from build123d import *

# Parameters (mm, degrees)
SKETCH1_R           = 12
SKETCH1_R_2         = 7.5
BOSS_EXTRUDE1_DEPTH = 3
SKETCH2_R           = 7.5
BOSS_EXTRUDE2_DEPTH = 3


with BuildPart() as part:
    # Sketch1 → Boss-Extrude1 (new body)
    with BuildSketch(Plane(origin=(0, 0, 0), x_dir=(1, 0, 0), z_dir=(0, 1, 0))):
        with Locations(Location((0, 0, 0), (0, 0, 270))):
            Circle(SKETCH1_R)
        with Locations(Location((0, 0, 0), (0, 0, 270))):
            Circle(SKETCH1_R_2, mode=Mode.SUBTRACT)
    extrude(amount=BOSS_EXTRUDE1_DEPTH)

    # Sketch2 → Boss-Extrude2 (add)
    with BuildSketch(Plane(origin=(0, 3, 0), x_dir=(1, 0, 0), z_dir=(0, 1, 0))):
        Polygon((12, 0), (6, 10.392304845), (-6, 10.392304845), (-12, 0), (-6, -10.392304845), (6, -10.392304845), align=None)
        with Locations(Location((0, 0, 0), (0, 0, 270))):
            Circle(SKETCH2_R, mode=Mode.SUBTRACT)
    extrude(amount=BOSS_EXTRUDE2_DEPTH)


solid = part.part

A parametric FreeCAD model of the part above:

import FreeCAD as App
import Part
import Sketcher
Q = App.Units.Quantity

doc = App.newDocument("Part")
body = doc.addObject("PartDesign::Body", "Body")

# Sketch on XZ plane
sketch1 = body.newObject("Sketcher::SketchObject", "Sketch")
sketch1.AttachmentSupport = (doc.getObject("XZ_Plane"), [""])
sketch1.MapMode = "FlatFace"
sketch1.addGeometry(Part.Circle(App.Vector(0, 0, 0), App.Vector(0, 0, 1), 12), False)
sketch1.addGeometry(Part.Circle(App.Vector(0, 0, 0), App.Vector(0, 0, 1), 8), False)
sketch1.addConstraint(Sketcher.Constraint("Coincident", 0, 3, -1, 1))
sketch1.addConstraint(Sketcher.Constraint("Coincident", 1, 3, -1, 1))
sketch1.addConstraint(Sketcher.Constraint("Diameter", 0, Q("24 mm")))
sketch1.addConstraint(Sketcher.Constraint("Diameter", 1, Q("15 mm")))
pad1 = body.newObject("PartDesign::Pad", "Pad")
pad1.Profile = sketch1
pad1.Length = 3
pad1.Reversed = True

# Sketch on XZ plane
sketch2 = body.newObject("Sketcher::SketchObject", "Sketch001")
sketch2.AttachmentSupport = (doc.getObject("XZ_Plane"), [""])
sketch2.MapMode = "FlatFace"
sketch2.AttachmentOffset = App.Placement(App.Vector(0, 0, -3), App.Rotation())
sketch2.addGeometry(Part.LineSegment(App.Vector(12, 0, 0), App.Vector(6, -10, 0)), False)
sketch2.addGeometry(Part.LineSegment(App.Vector(6, -10, 0), App.Vector(-6, -10, 0)), False)
sketch2.addGeometry(Part.LineSegment(App.Vector(-6, -10, 0), App.Vector(-12, 0, 0)), False)
sketch2.addGeometry(Part.LineSegment(App.Vector(-12, 0, 0), App.Vector(-6, 10, 0)), False)
sketch2.addGeometry(Part.LineSegment(App.Vector(-6, 10, 0), App.Vector(6, 10, 0)), False)
sketch2.addGeometry(Part.LineSegment(App.Vector(6, 10, 0), App.Vector(12, 0, 0)), False)
sketch2.addGeometry(Part.Circle(App.Vector(0, 0, 0), App.Vector(0, 0, 1), 8), False)
sketch2.addConstraint(Sketcher.Constraint("Coincident", 0, 2, 1, 1))
sketch2.addConstraint(Sketcher.Constraint("Coincident", 1, 2, 2, 1))
sketch2.addConstraint(Sketcher.Constraint("Coincident", 2, 2, 3, 1))
sketch2.addConstraint(Sketcher.Constraint("Coincident", 3, 2, 4, 1))
sketch2.addConstraint(Sketcher.Constraint("Coincident", 4, 2, 5, 1))
sketch2.addConstraint(Sketcher.Constraint("Coincident", 5, 2, 0, 1))
sketch2.addConstraint(Sketcher.Constraint("Horizontal", 1))
sketch2.addConstraint(Sketcher.Constraint("Horizontal", 4))
sketch2.addConstraint(Sketcher.Constraint("Coincident", 6, 3, -1, 1))
sketch2.addConstraint(Sketcher.Constraint("Symmetric", 0, 2, 3, 2, -1, 1))
sketch2.addConstraint(Sketcher.Constraint("Symmetric", 2, 2, 5, 2, -1, 1))
sketch2.addConstraint(Sketcher.Constraint("PointOnObject", 2, 2, -1))
sketch2.addConstraint(Sketcher.Constraint("Parallel", 2, 5))
sketch2.addConstraint(Sketcher.Constraint("Vertical", 1, 2, 3, 2))
sketch2.addConstraint(Sketcher.Constraint("Diameter", 6, Q("15 mm")))
sketch2.addConstraint(Sketcher.Constraint("DistanceX", 1, 2, 1, 1, Q("12 mm")))
sketch2.addConstraint(Sketcher.Constraint("Angle", 0, Q("-120 deg")))
sketch2.addConstraint(Sketcher.Constraint("Distance", 0, Q("12 mm")))
pad2 = body.newObject("PartDesign::Pad", "Pad001")
pad2.Profile = sketch2
pad2.Length = 3
pad2.Reversed = True

doc.recompute()
